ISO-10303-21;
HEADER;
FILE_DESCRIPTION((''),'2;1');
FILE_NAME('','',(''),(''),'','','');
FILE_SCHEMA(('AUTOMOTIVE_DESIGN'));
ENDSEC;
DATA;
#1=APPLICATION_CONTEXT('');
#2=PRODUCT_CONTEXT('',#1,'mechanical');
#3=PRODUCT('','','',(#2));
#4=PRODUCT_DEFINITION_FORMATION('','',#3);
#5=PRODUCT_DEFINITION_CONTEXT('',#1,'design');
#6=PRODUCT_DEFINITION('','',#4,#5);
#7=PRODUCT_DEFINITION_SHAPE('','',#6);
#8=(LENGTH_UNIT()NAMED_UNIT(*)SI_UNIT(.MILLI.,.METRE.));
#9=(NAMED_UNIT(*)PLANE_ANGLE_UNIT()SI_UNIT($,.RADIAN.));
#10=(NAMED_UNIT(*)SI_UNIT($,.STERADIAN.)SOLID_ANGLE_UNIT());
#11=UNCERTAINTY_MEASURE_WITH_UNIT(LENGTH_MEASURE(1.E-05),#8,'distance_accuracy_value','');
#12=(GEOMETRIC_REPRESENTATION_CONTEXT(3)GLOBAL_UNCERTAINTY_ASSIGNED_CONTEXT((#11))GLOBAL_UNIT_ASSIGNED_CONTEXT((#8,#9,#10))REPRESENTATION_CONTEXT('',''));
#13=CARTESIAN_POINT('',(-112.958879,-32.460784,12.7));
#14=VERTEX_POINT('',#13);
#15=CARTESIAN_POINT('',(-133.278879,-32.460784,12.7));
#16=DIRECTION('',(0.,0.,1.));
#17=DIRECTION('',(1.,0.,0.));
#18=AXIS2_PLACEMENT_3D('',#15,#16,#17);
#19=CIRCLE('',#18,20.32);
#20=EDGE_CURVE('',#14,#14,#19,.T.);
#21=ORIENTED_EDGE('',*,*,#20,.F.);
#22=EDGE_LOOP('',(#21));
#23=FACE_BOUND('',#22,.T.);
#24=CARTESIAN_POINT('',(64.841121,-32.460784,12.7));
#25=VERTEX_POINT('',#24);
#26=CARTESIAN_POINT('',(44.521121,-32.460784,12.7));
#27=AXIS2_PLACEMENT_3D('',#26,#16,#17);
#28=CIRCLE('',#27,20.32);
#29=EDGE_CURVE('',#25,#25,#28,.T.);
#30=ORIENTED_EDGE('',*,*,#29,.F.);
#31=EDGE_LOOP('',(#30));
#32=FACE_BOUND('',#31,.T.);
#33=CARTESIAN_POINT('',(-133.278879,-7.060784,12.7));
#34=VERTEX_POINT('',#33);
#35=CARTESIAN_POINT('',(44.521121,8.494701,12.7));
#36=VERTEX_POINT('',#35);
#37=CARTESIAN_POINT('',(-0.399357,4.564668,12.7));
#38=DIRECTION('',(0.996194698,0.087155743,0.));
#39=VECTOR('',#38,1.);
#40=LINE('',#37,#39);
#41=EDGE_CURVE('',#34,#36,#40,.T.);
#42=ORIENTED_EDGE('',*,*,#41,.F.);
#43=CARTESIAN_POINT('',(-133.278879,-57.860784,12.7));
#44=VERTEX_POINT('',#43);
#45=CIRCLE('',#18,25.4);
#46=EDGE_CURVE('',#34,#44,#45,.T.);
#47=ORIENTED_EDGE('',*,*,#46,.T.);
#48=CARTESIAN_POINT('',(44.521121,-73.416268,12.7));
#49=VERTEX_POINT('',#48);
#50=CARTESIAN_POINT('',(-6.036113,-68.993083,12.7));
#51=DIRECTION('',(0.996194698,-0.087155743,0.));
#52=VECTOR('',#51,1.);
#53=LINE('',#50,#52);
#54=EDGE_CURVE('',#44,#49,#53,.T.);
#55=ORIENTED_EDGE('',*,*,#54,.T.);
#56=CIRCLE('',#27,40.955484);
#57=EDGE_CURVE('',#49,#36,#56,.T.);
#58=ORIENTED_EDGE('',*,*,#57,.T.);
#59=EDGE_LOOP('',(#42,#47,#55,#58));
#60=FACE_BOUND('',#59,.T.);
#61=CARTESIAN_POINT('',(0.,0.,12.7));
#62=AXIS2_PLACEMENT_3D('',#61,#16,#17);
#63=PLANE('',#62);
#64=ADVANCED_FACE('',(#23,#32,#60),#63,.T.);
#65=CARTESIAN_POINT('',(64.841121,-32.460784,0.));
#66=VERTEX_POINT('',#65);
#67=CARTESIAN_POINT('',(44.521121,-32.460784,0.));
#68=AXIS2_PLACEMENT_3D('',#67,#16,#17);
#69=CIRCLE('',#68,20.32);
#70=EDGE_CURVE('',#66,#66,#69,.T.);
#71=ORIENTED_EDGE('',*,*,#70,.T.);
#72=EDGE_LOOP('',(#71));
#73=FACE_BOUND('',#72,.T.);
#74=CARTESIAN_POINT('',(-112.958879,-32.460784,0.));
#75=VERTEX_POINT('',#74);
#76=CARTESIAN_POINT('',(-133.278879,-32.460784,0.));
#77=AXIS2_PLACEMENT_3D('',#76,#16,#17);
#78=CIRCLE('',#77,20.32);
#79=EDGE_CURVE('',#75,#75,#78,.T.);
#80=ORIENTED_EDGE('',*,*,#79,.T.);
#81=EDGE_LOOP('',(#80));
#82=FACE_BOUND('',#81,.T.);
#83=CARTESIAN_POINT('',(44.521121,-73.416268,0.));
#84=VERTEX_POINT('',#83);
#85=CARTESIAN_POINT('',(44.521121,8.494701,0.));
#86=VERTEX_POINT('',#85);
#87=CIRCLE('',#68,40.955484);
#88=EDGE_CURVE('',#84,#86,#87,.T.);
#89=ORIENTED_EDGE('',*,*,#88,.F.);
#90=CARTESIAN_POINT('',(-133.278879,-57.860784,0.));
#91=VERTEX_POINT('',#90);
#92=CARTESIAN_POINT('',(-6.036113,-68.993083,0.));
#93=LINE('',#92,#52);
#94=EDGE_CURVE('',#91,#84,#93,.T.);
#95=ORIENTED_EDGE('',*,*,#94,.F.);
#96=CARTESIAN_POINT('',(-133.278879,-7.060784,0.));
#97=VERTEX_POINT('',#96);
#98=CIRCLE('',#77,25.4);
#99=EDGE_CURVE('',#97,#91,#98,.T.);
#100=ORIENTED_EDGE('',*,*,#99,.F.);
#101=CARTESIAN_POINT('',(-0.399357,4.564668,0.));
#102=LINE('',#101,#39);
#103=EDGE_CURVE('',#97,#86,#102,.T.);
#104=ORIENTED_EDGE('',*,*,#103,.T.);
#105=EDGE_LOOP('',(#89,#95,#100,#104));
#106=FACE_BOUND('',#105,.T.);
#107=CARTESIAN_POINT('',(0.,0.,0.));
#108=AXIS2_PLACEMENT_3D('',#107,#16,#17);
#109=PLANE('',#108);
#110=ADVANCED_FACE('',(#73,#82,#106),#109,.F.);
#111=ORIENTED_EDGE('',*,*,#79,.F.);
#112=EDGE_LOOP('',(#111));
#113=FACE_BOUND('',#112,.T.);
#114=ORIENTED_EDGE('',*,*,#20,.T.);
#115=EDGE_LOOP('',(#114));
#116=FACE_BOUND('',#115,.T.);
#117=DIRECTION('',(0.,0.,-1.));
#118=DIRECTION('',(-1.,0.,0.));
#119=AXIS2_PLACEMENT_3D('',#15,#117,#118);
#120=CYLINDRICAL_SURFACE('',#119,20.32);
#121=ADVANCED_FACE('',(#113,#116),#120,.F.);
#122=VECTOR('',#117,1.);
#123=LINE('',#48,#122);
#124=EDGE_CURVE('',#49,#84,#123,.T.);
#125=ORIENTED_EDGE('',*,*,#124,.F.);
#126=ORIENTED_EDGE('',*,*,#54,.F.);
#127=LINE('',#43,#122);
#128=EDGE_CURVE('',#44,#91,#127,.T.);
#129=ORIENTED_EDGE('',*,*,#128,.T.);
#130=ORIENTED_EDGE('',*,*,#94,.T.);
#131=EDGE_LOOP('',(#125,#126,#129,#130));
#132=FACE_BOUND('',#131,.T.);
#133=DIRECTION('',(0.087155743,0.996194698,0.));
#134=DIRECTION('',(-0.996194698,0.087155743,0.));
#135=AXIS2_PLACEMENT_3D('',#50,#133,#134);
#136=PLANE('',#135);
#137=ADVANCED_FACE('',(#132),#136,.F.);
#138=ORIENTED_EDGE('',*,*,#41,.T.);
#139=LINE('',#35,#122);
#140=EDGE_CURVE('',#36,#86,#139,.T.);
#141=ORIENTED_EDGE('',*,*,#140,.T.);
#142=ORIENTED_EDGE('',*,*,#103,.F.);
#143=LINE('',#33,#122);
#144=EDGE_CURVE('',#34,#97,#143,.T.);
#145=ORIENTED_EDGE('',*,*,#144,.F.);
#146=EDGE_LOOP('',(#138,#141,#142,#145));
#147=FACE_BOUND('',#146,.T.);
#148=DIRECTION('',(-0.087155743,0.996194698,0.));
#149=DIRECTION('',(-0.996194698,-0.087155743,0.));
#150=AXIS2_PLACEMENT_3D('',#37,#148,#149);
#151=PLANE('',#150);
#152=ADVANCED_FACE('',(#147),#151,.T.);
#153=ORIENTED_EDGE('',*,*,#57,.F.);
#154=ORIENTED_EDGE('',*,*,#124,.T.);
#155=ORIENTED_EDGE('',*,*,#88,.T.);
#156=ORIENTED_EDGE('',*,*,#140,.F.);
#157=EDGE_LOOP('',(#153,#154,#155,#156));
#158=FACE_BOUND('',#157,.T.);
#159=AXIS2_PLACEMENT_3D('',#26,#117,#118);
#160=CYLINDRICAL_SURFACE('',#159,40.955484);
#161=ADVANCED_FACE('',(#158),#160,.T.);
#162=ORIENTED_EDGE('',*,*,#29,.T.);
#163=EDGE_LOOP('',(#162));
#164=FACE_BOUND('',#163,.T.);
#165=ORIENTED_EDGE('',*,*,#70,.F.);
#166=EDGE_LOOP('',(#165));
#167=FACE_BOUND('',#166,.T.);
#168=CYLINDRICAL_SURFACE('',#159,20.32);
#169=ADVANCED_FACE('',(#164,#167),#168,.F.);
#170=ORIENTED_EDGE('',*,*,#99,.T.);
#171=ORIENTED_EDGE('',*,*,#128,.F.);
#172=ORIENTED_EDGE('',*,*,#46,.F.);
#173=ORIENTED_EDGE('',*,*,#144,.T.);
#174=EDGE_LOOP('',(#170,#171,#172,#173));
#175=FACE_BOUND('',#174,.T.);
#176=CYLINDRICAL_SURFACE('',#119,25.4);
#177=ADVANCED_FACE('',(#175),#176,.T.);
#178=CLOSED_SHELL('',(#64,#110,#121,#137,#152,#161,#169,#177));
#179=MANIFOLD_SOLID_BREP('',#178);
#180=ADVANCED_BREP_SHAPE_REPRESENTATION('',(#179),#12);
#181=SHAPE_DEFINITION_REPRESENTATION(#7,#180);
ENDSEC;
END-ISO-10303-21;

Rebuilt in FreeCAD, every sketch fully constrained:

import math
import FreeCAD as App
import Part
import Sketcher
from FreeCAD import Vector
Q = App.Units.Quantity

doc = App.newDocument("Part")
body = doc.addObject("PartDesign::Body", "Body")

sketch1 = body.newObject("Sketcher::SketchObject", "Sketch")
sketch1.AttachmentSupport = (doc.getObject("XY_Plane"), [""])
sketch1.MapMode = "FlatFace"
sketch1.addGeometry([
    Part.LineSegment(Vector(37, 8, 0), Vector(-133, -7, 0)),
    Part.ArcOfCircle(Part.Circle(Vector(-133, -32, 0), Vector(0, 0, 1), 25), math.radians(90), math.radians(270)),
    Part.LineSegment(Vector(-133, -58, 0), Vector(37, -73, 0)),
    Part.LineSegment(Vector(37, -73, 0), Vector(45, -73, 0)),
    Part.ArcOfCircle(Part.Circle(Vector(45, -32, 0), Vector(0, 0, 1), 41), math.radians(-90), math.radians(90)),
    Part.LineSegment(Vector(45, 8, 0), Vector(37, 8, 0)),
    Part.Circle(Vector(-133, -32, 0), Vector(0, 0, 1), 20),
    Part.Circle(Vector(45, -32, 0), Vector(0, 0, 1), 20),
], False)
sketch1.addConstraint([
    Sketcher.Constraint("Coincident", 0, 2, 1, 1),
    Sketcher.Constraint("Coincident", 1, 2, 2, 1),
    Sketcher.Constraint("Coincident", 2, 2, 3, 1),
    Sketcher.Constraint("Coincident", 3, 2, 4, 1),
    Sketcher.Constraint("Coincident", 4, 2, 5, 1),
    Sketcher.Constraint("Coincident", 5, 2, 0, 1),
    Sketcher.Constraint("Coincident", 6, 3, 1, 3),
    Sketcher.Constraint("Coincident", 7, 3, 4, 3),
    Sketcher.Constraint("Equal", 6, 7),
    Sketcher.Constraint("Parallel", 2, 3),
    Sketcher.Constraint("Parallel", 0, 5),
    Sketcher.Constraint("Horizontal", 1, 3, 4, 3),
    Sketcher.Constraint("Vertical", 6, 3, 0, 2),
    Sketcher.Constraint("Vertical", 0, 2, 1, 2),
    Sketcher.Constraint("Vertical", 7, 3, 3, 2),
    Sketcher.Constraint("Vertical", 3, 2, 4, 2),
    Sketcher.Constraint("Vertical", 2, 2, 5, 2),
    Sketcher.Constraint("Radius", 1, Q("1 in")),
    Sketcher.Constraint("Diameter", 6, Q("1.6 in")),
    Sketcher.Constraint("Angle", 0, Q("-175 deg")),
    Sketcher.Constraint("DistanceX", 1, 3, 4, 3, Q("7 in")),
    Sketcher.Constraint("DistanceX", 1, 3, -1, 1, Q("5.2472 in")),
    Sketcher.Constraint("DistanceY", -1, 1, 4, 2, 8.494701),
    Sketcher.Constraint("Distance", 3, 7.139011),
])
pad1 = body.newObject("PartDesign::Pad", "Pad")
pad1.Profile = sketch1
pad1.Length = Q("0.5 in")

doc.recompute()
